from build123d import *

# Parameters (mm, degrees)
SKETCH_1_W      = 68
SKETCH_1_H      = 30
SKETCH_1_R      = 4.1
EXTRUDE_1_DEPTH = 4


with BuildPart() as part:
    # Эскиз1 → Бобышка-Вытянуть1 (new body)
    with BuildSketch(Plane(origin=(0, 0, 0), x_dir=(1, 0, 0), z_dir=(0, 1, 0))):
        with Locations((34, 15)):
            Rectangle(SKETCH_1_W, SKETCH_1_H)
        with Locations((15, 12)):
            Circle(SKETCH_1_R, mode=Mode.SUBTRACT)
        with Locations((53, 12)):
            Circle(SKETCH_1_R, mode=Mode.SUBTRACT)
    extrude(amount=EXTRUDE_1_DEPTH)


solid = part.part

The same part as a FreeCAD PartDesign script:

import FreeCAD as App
import Part
import Sketcher

V = App.Vector


def add_polygon(sketch, points):
    """Adds a closed chain of lines whose ends are joined by coincident constraints."""
    first, n = sketch.GeometryCount, len(points)
    for a, b in zip(points, points[1:] + points[:1]):
        sketch.addGeometry(Part.LineSegment(App.Vector(*a, 0), App.Vector(*b, 0)), False)
    for i in range(n):
        sketch.addConstraint(Sketcher.Constraint("Coincident", first + i, 2, first + (i + 1) % n, 1))

doc = App.newDocument("Part")
body = doc.addObject("PartDesign::Body", "Body")

sketch1 = body.newObject("Sketcher::SketchObject", "Sketch")
sketch1.AttachmentSupport = (doc.getObject("XZ_Plane"), [""])
sketch1.MapMode = "FlatFace"
add_polygon(sketch1, [(0, -30), (0, 0), (68, 0), (68, -30)])
sketch1.addGeometry(Part.Circle(V(15, -12, 0), V(0, 0, 1), 4.1), False)
sketch1.addGeometry(Part.Circle(V(53, -12, 0), V(0, 0, 1), 4.1), False)
sketch1.addConstraint(Sketcher.Constraint("Vertical", 0))
sketch1.addConstraint(Sketcher.Constraint("Horizontal", 1))
sketch1.addConstraint(Sketcher.Constraint("Vertical", 2))
sketch1.addConstraint(Sketcher.Constraint("Horizontal", 3))
sketch1.addConstraint(Sketcher.Constraint("Coincident", 0, 2, -1, 1))
sketch1.addConstraint(Sketcher.Constraint("Equal", 4, 5))
sketch1.addConstraint(Sketcher.Constraint("Horizontal", 4, 3, 5, 3))
sketch1.addConstraint(Sketcher.Constraint("Diameter", 4, 8.2))
sketch1.addConstraint(Sketcher.Constraint("DistanceX", 1, 1, 1, 2, 68.0))
sketch1.addConstraint(Sketcher.Constraint("DistanceY", 0, 1, 0, 2, 30.0))
sketch1.addConstraint(Sketcher.Constraint("DistanceX", -1, 1, 4, 3, 15.0))
sketch1.addConstraint(Sketcher.Constraint("DistanceY", 4, 3, -1, 1, 12.0))
sketch1.addConstraint(Sketcher.Constraint("DistanceX", -1, 1, 5, 3, 53.0))
pad1 = body.newObject("PartDesign::Pad", "Pad")
pad1.Profile = sketch1
pad1.Length = 4
pad1.Reversed = True

doc.recompute()
